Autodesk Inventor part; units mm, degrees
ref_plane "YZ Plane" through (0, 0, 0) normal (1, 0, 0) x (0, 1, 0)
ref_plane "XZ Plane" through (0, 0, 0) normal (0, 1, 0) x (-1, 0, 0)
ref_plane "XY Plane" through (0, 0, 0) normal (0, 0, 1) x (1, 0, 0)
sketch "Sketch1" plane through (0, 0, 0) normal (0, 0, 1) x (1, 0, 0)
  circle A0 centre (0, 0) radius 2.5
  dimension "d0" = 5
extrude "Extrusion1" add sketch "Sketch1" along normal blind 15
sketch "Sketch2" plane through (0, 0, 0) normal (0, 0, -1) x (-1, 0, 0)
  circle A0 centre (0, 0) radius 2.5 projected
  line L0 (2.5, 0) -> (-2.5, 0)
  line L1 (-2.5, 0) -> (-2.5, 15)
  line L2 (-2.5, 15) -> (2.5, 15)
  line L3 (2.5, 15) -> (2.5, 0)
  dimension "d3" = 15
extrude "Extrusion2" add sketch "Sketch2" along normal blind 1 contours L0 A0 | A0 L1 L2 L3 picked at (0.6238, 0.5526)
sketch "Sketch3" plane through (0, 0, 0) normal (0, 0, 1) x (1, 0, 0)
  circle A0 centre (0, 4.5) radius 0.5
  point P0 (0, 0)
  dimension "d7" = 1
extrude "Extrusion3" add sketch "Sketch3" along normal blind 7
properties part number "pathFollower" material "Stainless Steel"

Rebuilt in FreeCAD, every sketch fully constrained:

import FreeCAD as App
import Part
import Sketcher
Q = App.Units.Quantity


def add_polygon(sketch, points):
    """Adds a closed chain of lines whose ends are joined by coincident constraints."""
    first, n = sketch.GeometryCount, len(points)
    for a, b in zip(points, points[1:] + points[:1]):
        sketch.addGeometry(Part.LineSegment(App.Vector(*a, 0), App.Vector(*b, 0)), False)
    for i in range(n):
        sketch.addConstraint(Sketcher.Constraint("Coincident", first + i, 2, first + (i + 1) % n, 1))

doc = App.newDocument("Part")
params = doc.addObject("Spreadsheet::Sheet", "Params")
for row, (alias, value) in enumerate([
    ("sketch1_diameter", "5 mm"),
    ("pad1_length", "15 mm"),
    ("sketch2_height", "15 mm"),
    ("sketch2_width", "5 mm"),
    ("pad2_length", "1 mm"),
    ("sketch3_diameter", "1 mm"),
    ("pad3_length", "7 mm"),
], start=1):
    params.set(f"A{row}", alias)
    params.set(f"B{row}", "=" + value)
    params.setAlias(f"B{row}", alias)

body = doc.addObject("PartDesign::Body", "Body")

# Sketch on XY plane
sketch1 = doc.addObject("Sketcher::SketchObject", "Sketch")
body.addObject(sketch1)
sketch1.AttachmentSupport = (doc.XY_Plane, [""])
sketch1.MapMode = "FlatFace"
sketch1.addGeometry(Part.Circle(App.Vector(0, 0, 0), App.Vector(0, 0, 1), 2.5), False)
sketch1.addConstraint(Sketcher.Constraint("Coincident", 0, 3, -1, 1))
sketch1.addConstraint(Sketcher.Constraint("Diameter", 0, Q("5 mm")))
sketch1.setExpression("Constraints[1]", "Params.sketch1_diameter")
pad1 = doc.addObject("PartDesign::Pad", "Pad")
body.addObject(pad1)
pad1.Profile = sketch1
pad1.setExpression("Length", "Params.pad1_length")

# Sketch on XY plane
sketch2 = doc.addObject("Sketcher::SketchObject", "Sketch001")
body.addObject(sketch2)
sketch2.AttachmentSupport = (doc.XY_Plane, [""])
sketch2.MapMode = "FlatFace"
add_polygon(sketch2, [(2, 0), (-2, 0), (-2, 15), (2, 15)])  # lines 0-3
sketch2.addConstraint(Sketcher.Constraint("Horizontal", 0))
sketch2.addConstraint(Sketcher.Constraint("Vertical", 1))
sketch2.addConstraint(Sketcher.Constraint("Horizontal", 2))
sketch2.addConstraint(Sketcher.Constraint("Vertical", 3))
sketch2.addConstraint(Sketcher.Constraint("Symmetric", 0, 2, 3, 2, -1, 1))
sketch2.addConstraint(Sketcher.Constraint("DistanceY", 1, 1, 1, 2, Q("15 mm")))
sketch2.addConstraint(Sketcher.Constraint("DistanceX", 0, 2, 0, 1, Q("5 mm")))
sketch2.setExpression("Constraints[9]", "Params.sketch2_height")
sketch2.setExpression("Constraints[10]", "Params.sketch2_width")
pad2 = doc.addObject("PartDesign::Pad", "Pad001")
body.addObject(pad2)
pad2.Profile = sketch2
pad2.setExpression("Length", "Params.pad2_length")
pad2.Reversed = True

# Sketch on XY plane
sketch3 = doc.addObject("Sketcher::SketchObject", "Sketch002")
body.addObject(sketch3)
sketch3.AttachmentSupport = (doc.XY_Plane, [""])
sketch3.MapMode = "FlatFace"
sketch3.addGeometry(Part.Circle(App.Vector(0, 4.5, 0), App.Vector(0, 0, 1), 0.5), False)
sketch3.addConstraint(Sketcher.Constraint("PointOnObject", 0, 3, -2))
sketch3.addConstraint(Sketcher.Constraint("Diameter", 0, Q("1 mm")))
sketch3.addConstraint(Sketcher.Constraint("DistanceY", -1, 1, 0, 3, Q("4.5 mm")))
sketch3.setExpression("Constraints[1]", "Params.sketch3_diameter")
pad3 = doc.addObject("PartDesign::Pad", "Pad002")
body.addObject(pad3)
pad3.Profile = sketch3
pad3.setExpression("Length", "Params.pad3_length")

doc.recompute()
